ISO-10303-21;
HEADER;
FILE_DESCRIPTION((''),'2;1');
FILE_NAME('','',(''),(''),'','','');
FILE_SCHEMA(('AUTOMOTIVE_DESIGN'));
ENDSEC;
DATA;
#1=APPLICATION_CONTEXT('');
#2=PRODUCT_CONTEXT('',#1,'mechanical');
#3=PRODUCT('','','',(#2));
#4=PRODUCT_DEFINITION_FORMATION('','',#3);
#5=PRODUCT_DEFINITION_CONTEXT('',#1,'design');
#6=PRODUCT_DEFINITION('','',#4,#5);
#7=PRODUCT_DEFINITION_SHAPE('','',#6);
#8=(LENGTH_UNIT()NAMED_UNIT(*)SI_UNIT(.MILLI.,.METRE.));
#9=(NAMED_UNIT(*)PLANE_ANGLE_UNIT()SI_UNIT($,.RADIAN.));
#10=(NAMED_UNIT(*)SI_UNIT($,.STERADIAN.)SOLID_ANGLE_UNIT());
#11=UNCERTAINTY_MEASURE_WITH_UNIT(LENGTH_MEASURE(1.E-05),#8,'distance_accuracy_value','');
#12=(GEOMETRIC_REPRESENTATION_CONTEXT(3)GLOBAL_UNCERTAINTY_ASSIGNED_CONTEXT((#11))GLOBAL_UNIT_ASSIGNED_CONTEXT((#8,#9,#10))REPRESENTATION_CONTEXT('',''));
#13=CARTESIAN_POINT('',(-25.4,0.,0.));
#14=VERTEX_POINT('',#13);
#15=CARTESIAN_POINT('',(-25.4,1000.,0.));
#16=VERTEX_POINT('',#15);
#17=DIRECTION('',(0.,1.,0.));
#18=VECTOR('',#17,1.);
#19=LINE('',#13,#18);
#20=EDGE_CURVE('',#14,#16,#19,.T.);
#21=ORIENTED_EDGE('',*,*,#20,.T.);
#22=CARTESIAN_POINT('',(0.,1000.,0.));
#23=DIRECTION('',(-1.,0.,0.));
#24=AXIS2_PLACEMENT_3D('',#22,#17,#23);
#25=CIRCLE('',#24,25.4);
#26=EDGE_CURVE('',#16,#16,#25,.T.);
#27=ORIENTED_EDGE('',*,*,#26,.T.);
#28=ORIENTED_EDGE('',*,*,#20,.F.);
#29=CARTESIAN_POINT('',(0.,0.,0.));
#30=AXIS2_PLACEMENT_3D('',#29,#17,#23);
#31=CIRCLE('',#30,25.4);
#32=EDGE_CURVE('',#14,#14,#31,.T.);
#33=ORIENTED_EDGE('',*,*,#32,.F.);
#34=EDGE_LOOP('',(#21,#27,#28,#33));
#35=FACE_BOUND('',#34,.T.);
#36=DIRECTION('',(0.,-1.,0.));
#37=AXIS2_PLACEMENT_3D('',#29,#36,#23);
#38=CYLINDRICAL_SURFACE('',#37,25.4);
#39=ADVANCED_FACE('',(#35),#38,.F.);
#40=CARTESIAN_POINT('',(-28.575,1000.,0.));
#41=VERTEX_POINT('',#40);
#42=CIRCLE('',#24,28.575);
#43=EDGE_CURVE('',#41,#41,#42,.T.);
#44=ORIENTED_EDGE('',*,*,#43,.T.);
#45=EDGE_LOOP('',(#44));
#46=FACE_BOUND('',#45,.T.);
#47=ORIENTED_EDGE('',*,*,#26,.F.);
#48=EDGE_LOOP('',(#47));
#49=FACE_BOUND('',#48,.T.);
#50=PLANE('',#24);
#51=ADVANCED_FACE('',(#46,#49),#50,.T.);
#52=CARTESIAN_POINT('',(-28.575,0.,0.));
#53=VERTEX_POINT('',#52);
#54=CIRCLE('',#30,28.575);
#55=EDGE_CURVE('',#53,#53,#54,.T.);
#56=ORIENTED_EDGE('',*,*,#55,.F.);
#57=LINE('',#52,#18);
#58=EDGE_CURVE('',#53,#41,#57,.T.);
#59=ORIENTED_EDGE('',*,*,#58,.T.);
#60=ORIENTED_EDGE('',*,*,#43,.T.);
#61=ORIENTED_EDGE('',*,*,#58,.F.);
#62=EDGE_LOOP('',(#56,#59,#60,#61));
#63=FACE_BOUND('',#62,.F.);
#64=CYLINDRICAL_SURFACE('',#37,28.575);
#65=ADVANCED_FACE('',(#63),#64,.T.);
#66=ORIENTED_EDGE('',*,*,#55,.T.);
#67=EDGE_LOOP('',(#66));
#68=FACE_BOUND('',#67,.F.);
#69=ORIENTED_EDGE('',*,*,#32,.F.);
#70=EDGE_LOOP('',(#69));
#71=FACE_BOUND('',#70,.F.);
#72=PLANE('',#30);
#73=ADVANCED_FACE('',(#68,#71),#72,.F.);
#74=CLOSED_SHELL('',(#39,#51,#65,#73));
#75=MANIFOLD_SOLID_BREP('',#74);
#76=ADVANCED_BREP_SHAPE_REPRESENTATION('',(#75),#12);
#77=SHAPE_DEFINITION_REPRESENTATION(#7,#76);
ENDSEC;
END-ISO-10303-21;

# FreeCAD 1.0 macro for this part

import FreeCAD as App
import Part
import Sketcher
from FreeCAD import Vector
Q = App.Units.Quantity

doc = App.newDocument("Part")
body = doc.addObject("PartDesign::Body", "Body")

# Sketch on XZ plane
sketch1 = doc.addObject("Sketcher::SketchObject", "Sketch")
body.addObject(sketch1)
sketch1.AttachmentSupport = (doc.XZ_Plane, [""])
sketch1.MapMode = "FlatFace"
sketch1.addGeometry(Part.Circle(Vector(0, 0, 0), Vector(0, 0, 1), 28.575), False)
sketch1.addGeometry(Part.Circle(Vector(0, 0, 0), Vector(0, 0, 1), 25.4), False)
sketch1.addConstraint(Sketcher.Constraint("Coincident", 0, 3, -1, 1))
sketch1.addConstraint(Sketcher.Constraint("Coincident", 1, 3, -1, 1))
sketch1.addConstraint(Sketcher.Constraint("Diameter", 1, Q("2 in")))
sketch1.addConstraint(Sketcher.Constraint("Diameter", 0, Q("2.25 in")))
pad1 = doc.addObject("PartDesign::Pad", "Pad")
body.addObject(pad1)
pad1.Profile = sketch1
pad1.Length = 1000
pad1.Reversed = True

doc.recompute()
